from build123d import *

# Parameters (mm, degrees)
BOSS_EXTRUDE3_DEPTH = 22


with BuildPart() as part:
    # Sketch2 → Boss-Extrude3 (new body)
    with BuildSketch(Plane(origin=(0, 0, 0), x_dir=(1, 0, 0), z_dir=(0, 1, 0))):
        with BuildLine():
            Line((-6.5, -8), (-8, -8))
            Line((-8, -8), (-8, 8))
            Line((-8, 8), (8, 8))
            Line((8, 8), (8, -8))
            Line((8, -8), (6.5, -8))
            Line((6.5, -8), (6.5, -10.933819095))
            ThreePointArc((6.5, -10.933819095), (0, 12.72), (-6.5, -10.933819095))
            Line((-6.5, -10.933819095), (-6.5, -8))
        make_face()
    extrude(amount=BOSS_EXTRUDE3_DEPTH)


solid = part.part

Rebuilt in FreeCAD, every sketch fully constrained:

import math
import FreeCAD as App
import Part
import Sketcher

V = App.Vector

doc = App.newDocument("Part")
body = doc.addObject("PartDesign::Body", "Body")

sketch1 = body.newObject("Sketcher::SketchObject", "Sketch")
sketch1.AttachmentSupport = (doc.getObject("XZ_Plane"), [""])
sketch1.MapMode = "FlatFace"
sketch1.addGeometry([
    Part.LineSegment(V(-6.5, 8, 0), V(-8, 8, 0)),
    Part.LineSegment(V(-8, 8, 0), V(-8, -8, 0)),
    Part.LineSegment(V(-8, -8, 0), V(8, -8, 0)),
    Part.LineSegment(V(8, -8, 0), V(8, 8, 0)),
    Part.LineSegment(V(8, 8, 0), V(6.5, 8, 0)),
    Part.LineSegment(V(6.5, 8, 0), V(6.5, 10.933819, 0)),
    Part.ArcOfCircle(Part.Circle(V(0, 0, 0), V(0, 0, 1), 12.72), math.radians(120.730881), math.radians(419.269119)),
    Part.LineSegment(V(-6.5, 10.933819, 0), V(-6.5, 8, 0)),
], False)
sketch1.addConstraint([
    Sketcher.Constraint("Coincident", 0, 2, 1, 1),
    Sketcher.Constraint("Coincident", 1, 2, 2, 1),
    Sketcher.Constraint("Coincident", 2, 2, 3, 1),
    Sketcher.Constraint("Coincident", 3, 2, 4, 1),
    Sketcher.Constraint("Coincident", 4, 2, 5, 1),
    Sketcher.Constraint("Coincident", 5, 2, 6, 2),
    Sketcher.Constraint("Coincident", 6, 1, 7, 1),
    Sketcher.Constraint("Coincident", 7, 2, 0, 1),
    Sketcher.Constraint("Horizontal", 0),
    Sketcher.Constraint("Vertical", 1),
    Sketcher.Constraint("Horizontal", 2),
    Sketcher.Constraint("Vertical", 3),
    Sketcher.Constraint("Horizontal", 4),
    Sketcher.Constraint("Vertical", 5),
    Sketcher.Constraint("Vertical", 7),
    Sketcher.Constraint("Coincident", 6, 3, -1, 1),
    Sketcher.Constraint("Symmetric", 0, 2, 2, 2, -1, 1),
    Sketcher.Constraint("Symmetric", 4, 2, 7, 2, -2),
    Sketcher.Constraint("Equal", 2, 1),
    Sketcher.Constraint("DistanceX", 2, 1, 2, 2, 16.0),
    Sketcher.Constraint("Radius", 6, 12.72),
    Sketcher.Constraint("DistanceX", 0, 2, 0, 1, 1.5),
])
pad1 = body.newObject("PartDesign::Pad", "Pad")
pad1.Profile = sketch1
pad1.Length = 22
pad1.Reversed = True

doc.recompute()
